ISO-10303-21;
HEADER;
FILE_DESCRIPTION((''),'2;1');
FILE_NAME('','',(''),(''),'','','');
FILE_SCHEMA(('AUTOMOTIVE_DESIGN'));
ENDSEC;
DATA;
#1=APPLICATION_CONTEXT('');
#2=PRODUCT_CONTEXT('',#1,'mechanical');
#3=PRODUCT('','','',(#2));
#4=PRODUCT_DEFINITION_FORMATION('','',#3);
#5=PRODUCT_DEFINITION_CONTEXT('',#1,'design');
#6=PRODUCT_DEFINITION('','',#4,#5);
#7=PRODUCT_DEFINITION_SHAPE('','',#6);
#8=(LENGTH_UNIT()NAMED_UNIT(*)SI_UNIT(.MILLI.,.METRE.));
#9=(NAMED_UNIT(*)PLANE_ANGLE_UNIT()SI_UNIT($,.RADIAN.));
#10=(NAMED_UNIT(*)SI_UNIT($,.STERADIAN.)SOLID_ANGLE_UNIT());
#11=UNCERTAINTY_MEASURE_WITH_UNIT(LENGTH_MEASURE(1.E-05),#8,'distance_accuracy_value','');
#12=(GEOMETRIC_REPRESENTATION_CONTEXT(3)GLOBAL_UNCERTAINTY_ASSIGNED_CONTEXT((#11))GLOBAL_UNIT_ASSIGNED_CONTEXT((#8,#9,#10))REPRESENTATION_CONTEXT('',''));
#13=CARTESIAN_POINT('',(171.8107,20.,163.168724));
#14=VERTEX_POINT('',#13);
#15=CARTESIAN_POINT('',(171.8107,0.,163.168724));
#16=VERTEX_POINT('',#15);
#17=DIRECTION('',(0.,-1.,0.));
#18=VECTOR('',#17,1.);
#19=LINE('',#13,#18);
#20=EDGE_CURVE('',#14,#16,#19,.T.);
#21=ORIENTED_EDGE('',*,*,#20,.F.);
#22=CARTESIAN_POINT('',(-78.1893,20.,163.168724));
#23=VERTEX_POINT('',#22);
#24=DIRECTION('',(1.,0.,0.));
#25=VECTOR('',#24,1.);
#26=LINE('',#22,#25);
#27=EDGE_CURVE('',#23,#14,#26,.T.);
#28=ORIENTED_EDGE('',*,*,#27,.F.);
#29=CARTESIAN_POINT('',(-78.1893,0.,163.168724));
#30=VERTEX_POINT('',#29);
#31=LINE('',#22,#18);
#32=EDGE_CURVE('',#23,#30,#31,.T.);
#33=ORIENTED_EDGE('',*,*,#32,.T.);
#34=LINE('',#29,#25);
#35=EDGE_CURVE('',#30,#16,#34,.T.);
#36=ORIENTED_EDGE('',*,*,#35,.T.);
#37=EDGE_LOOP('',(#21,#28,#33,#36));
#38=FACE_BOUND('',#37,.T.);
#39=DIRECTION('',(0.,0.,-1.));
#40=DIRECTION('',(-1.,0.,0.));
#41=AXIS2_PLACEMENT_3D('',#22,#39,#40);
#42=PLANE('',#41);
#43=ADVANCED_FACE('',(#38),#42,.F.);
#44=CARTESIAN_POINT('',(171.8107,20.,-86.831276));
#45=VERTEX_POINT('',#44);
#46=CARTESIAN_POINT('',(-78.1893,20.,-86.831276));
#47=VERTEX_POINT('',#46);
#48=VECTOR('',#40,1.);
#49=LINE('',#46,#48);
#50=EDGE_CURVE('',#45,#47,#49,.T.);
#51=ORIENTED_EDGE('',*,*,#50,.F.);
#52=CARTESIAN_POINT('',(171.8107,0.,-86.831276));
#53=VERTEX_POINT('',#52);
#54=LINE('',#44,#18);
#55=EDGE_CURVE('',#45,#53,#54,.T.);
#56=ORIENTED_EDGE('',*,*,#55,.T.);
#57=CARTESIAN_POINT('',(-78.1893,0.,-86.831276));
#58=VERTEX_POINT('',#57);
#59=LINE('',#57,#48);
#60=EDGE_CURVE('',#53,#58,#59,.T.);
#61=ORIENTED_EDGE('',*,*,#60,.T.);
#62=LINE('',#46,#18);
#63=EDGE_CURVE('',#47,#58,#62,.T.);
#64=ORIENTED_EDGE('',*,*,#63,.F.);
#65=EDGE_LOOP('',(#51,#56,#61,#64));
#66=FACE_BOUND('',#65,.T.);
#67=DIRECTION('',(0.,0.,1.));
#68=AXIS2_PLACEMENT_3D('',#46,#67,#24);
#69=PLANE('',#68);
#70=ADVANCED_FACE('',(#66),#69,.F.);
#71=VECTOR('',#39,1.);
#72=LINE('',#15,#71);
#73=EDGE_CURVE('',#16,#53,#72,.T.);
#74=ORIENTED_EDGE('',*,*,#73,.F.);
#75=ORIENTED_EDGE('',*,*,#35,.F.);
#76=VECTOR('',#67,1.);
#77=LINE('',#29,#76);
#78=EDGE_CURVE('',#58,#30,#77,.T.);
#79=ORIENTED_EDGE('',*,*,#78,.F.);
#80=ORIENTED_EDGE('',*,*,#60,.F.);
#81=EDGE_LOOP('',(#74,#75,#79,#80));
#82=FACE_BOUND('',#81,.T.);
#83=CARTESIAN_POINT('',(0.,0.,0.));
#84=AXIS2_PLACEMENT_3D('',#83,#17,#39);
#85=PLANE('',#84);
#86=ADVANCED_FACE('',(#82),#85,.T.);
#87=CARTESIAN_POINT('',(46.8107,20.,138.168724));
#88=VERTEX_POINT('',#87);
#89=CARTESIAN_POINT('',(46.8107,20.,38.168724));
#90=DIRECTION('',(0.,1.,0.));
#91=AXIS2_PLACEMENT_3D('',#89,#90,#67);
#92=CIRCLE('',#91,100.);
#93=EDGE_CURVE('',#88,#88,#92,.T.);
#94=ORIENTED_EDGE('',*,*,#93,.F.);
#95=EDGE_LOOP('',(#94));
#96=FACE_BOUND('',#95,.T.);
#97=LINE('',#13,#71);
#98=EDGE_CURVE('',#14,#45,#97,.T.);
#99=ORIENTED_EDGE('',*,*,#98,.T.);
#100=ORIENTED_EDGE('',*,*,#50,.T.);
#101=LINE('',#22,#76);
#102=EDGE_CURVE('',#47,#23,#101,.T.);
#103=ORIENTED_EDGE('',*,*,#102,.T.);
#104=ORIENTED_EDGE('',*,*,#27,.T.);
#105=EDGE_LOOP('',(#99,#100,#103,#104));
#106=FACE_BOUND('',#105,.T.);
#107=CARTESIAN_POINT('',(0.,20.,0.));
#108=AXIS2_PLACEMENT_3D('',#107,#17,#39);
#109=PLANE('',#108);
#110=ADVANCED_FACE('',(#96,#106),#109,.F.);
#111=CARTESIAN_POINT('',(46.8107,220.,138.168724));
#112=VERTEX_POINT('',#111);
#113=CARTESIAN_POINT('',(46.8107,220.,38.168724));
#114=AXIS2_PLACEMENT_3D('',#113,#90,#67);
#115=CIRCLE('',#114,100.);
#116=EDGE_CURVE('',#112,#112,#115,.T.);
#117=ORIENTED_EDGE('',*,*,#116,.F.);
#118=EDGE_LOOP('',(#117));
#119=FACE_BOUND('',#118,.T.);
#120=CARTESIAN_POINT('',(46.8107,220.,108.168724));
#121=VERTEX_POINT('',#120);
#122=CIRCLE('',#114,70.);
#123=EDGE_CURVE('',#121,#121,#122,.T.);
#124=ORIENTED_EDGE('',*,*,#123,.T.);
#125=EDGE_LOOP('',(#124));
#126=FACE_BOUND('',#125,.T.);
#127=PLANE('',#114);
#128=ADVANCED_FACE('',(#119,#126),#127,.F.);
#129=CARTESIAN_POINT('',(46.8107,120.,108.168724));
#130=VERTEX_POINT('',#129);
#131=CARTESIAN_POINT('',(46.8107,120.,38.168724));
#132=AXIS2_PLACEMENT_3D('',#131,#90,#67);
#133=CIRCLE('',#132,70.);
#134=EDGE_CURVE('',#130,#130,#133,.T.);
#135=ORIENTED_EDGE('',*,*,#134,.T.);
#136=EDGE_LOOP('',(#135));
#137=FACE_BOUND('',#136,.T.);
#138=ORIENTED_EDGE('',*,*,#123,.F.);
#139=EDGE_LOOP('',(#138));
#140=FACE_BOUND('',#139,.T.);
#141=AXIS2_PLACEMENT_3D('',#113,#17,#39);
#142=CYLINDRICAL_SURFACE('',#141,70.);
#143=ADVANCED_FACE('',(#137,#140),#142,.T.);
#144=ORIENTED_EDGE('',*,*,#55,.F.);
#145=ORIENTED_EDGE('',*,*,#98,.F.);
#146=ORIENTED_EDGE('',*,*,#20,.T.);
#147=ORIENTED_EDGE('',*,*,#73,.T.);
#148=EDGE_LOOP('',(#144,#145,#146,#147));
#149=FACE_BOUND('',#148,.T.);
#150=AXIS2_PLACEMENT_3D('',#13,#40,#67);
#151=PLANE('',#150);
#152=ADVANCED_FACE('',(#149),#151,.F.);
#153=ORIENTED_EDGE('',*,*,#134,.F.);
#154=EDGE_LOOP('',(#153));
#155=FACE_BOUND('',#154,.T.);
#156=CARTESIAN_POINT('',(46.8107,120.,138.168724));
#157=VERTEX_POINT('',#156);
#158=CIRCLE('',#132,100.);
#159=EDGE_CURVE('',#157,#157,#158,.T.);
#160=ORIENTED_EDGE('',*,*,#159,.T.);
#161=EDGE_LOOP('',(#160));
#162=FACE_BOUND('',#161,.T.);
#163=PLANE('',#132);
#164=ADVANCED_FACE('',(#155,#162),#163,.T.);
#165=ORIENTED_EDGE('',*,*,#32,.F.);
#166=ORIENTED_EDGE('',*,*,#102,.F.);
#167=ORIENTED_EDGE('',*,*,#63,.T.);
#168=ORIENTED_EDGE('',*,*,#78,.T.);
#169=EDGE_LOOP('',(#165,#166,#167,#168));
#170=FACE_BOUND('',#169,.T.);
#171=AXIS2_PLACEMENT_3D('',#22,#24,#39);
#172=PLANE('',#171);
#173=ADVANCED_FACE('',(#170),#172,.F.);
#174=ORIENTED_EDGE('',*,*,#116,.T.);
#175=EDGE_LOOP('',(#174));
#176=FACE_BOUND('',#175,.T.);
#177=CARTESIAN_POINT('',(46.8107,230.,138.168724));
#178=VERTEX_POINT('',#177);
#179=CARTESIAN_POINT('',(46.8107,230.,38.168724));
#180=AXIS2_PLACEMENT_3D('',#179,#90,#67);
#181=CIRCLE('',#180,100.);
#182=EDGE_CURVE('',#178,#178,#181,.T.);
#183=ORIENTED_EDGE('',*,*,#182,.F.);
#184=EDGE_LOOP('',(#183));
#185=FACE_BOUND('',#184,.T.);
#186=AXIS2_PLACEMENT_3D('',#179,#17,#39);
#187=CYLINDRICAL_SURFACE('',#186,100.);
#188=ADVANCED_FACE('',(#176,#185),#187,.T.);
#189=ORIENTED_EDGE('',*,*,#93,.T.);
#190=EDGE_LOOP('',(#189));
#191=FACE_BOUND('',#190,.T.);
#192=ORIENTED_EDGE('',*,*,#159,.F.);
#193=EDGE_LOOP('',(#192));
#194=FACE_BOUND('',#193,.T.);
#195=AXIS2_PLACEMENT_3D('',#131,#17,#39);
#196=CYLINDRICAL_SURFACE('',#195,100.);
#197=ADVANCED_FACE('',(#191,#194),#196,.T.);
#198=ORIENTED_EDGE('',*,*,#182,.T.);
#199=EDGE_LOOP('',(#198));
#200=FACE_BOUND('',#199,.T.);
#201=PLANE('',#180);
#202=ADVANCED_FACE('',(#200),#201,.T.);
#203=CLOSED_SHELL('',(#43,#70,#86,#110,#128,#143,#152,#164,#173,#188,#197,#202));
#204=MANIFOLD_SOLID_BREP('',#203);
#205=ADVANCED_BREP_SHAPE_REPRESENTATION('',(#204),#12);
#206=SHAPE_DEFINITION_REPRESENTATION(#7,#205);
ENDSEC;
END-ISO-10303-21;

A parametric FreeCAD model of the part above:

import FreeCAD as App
import Part
import Sketcher
Q = App.Units.Quantity


def add_polygon(sketch, points):
    """Adds a closed chain of lines whose ends are joined by coincident constraints."""
    first, n = sketch.GeometryCount, len(points)
    for a, b in zip(points, points[1:] + points[:1]):
        sketch.addGeometry(Part.LineSegment(App.Vector(*a, 0), App.Vector(*b, 0)), False)
    for i in range(n):
        sketch.addConstraint(Sketcher.Constraint("Coincident", first + i, 2, first + (i + 1) % n, 1))

doc = App.newDocument("Part")
body = doc.addObject("PartDesign::Body", "Body")

# Sketch on XZ plane
sketch1 = body.newObject("Sketcher::SketchObject", "Sketch")
sketch1.AttachmentSupport = (doc.getObject("XZ_Plane"), [""])
sketch1.MapMode = "FlatFace"
add_polygon(sketch1, [(-78, -87), (-78, 163), (172, 163), (172, -87)])  # lines 0-3
sketch1.addConstraint(Sketcher.Constraint("Vertical", 0))
sketch1.addConstraint(Sketcher.Constraint("Horizontal", 1))
sketch1.addConstraint(Sketcher.Constraint("Vertical", 2))
sketch1.addConstraint(Sketcher.Constraint("Horizontal", 3))
sketch1.addConstraint(Sketcher.Constraint("Equal", 3, 0))
sketch1.addConstraint(Sketcher.Constraint("DistanceX", 1, 1, 1, 2, Q("250 mm")))
sketch1.addConstraint(Sketcher.Constraint("DistanceX", 0, 2, -1, 1, Q("78.1893 mm")))
sketch1.addConstraint(Sketcher.Constraint("DistanceY", -1, 1, 0, 2, Q("163.168724 mm")))
pad1 = body.newObject("PartDesign::Pad", "Pad")
pad1.Profile = sketch1
pad1.Length = 20
pad1.Reversed = True

# Sketch on XZ plane
sketch2 = body.newObject("Sketcher::SketchObject", "Sketch001")
sketch2.AttachmentSupport = (doc.getObject("XZ_Plane"), [""])
sketch2.MapMode = "FlatFace"
sketch2.AttachmentOffset = App.Placement(App.Vector(0, 0, -20), App.Rotation())
sketch2.addGeometry(Part.Circle(App.Vector(47, 38, 0), App.Vector(0, 0, 1), 100), False)
sketch2.addConstraint(Sketcher.Constraint("Diameter", 0, Q("200 mm")))
sketch2.addConstraint(Sketcher.Constraint("DistanceX", -1, 1, 0, 3, Q("46.8107 mm")))
sketch2.addConstraint(Sketcher.Constraint("DistanceY", -1, 1, 0, 3, Q("38.168724 mm")))
pad2 = body.newObject("PartDesign::Pad", "Pad001")
pad2.Profile = sketch2
pad2.Length = 100
pad2.Reversed = True

# Sketch on XZ plane
sketch3 = body.newObject("Sketcher::SketchObject", "Sketch002")
sketch3.AttachmentSupport = (doc.getObject("XZ_Plane"), [""])
sketch3.MapMode = "FlatFace"
sketch3.AttachmentOffset = App.Placement(App.Vector(0, 0, -120), App.Rotation())
sketch3.addGeometry(Part.Circle(App.Vector(47, 38, 0), App.Vector(0, 0, 1), 70), False)
sketch3.addConstraint(Sketcher.Constraint("Diameter", 0, Q("140 mm")))
sketch3.addConstraint(Sketcher.Constraint("DistanceX", -1, 1, 0, 3, Q("46.8107 mm")))
sketch3.addConstraint(Sketcher.Constraint("DistanceY", -1, 1, 0, 3, Q("38.168724 mm")))
pad3 = body.newObject("PartDesign::Pad", "Pad002")
pad3.Profile = sketch3
pad3.Length = 100
pad3.Reversed = True

# Sketch on XZ plane
sketch4 = body.newObject("Sketcher::SketchObject", "Sketch003")
sketch4.AttachmentSupport = (doc.getObject("XZ_Plane"), [""])
sketch4.MapMode = "FlatFace"
sketch4.AttachmentOffset = App.Placement(App.Vector(0, 0, -220), App.Rotation())
sketch4.addGeometry(Part.Circle(App.Vector(47, 38, 0), App.Vector(0, 0, 1), 100), False)
sketch4.addConstraint(Sketcher.Constraint("Diameter", 0, Q("200 mm")))
sketch4.addConstraint(Sketcher.Constraint("DistanceX", -1, 1, 0, 3, Q("46.8107 mm")))
sketch4.addConstraint(Sketcher.Constraint("DistanceY", -1, 1, 0, 3, Q("38.168724 mm")))
pad4 = body.newObject("PartDesign::Pad", "Pad003")
pad4.Profile = sketch4
pad4.Length = 10
pad4.Reversed = True

doc.recompute()
